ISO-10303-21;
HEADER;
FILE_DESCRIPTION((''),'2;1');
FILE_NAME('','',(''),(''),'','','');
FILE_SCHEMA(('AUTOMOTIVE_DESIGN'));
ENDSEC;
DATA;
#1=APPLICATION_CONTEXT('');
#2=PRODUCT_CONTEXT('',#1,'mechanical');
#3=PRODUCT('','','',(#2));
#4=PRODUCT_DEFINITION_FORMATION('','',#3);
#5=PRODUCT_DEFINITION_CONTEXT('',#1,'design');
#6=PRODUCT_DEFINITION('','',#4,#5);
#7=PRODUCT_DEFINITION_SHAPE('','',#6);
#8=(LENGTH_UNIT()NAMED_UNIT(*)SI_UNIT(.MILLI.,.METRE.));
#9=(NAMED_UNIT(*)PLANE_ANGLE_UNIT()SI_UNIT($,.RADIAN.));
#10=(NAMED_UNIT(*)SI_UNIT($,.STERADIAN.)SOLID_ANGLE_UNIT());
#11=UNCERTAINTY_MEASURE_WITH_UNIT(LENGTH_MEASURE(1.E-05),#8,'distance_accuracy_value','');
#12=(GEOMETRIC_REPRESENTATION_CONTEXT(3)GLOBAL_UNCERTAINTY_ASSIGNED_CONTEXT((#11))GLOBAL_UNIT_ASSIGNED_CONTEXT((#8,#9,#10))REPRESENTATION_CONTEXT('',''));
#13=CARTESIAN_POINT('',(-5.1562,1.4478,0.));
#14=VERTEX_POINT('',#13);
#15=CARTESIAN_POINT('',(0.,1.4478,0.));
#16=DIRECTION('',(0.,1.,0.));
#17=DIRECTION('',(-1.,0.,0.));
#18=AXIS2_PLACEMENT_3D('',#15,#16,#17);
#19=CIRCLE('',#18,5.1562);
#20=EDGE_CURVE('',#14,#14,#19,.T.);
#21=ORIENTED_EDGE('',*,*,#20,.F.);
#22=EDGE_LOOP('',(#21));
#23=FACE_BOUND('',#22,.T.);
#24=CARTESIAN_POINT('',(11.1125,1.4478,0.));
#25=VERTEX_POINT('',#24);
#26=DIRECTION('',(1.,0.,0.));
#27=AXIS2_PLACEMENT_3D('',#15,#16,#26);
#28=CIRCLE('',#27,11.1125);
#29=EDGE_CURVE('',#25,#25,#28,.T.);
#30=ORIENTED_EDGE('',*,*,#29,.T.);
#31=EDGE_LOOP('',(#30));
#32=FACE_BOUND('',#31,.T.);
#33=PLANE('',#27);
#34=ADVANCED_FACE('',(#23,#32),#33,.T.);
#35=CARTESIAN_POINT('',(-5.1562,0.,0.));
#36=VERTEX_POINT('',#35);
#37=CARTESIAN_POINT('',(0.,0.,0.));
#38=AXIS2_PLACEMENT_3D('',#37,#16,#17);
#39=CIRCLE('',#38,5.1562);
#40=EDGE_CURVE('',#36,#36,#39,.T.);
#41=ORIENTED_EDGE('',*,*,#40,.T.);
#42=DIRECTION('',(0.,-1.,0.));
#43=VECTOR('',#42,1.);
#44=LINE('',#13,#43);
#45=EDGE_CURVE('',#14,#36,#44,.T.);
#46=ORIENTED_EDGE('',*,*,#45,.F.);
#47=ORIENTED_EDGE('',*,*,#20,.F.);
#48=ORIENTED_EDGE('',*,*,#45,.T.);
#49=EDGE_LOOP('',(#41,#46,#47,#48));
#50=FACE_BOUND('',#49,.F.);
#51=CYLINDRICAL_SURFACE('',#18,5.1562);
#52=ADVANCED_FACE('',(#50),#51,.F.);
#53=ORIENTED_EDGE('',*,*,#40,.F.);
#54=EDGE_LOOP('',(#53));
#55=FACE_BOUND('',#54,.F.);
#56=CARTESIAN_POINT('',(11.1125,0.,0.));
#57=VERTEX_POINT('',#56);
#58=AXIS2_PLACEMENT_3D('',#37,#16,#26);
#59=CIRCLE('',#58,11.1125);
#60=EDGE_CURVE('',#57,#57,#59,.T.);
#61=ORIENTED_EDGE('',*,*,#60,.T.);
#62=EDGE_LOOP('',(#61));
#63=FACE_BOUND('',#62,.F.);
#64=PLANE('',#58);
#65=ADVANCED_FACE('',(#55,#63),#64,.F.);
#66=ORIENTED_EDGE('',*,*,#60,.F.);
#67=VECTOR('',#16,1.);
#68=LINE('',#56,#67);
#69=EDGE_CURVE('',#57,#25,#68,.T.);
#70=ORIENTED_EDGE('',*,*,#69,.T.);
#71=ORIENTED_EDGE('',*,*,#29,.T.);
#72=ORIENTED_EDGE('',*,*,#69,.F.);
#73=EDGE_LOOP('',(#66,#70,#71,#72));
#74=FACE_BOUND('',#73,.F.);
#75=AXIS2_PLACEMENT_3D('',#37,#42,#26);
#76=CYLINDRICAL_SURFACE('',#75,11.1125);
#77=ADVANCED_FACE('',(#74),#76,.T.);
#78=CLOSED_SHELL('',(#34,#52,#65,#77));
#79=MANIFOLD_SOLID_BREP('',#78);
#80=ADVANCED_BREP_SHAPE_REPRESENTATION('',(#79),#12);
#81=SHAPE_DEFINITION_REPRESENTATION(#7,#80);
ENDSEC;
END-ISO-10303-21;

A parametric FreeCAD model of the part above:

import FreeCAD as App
import Part
import Sketcher
Q = App.Units.Quantity

doc = App.newDocument("Part")
body = doc.addObject("PartDesign::Body", "Body")

# Sketch on XZ plane
sketch1 = body.newObject("Sketcher::SketchObject", "Sketch")
sketch1.AttachmentSupport = (doc.getObject("XZ_Plane"), [""])
sketch1.MapMode = "FlatFace"
sketch1.addGeometry(Part.Circle(App.Vector(0, 0, 0), App.Vector(0, 0, 1), 11.1125), False)
sketch1.addConstraint([
    Sketcher.Constraint("Coincident", 0, 3, -1, 1),
    Sketcher.Constraint("Diameter", 0, Q("0.875 in")),
])
pad1 = body.newObject("PartDesign::Pad", "Pad")
pad1.Profile = sketch1
pad1.Length = Q("0.057 in")
pad1.Reversed = True

# Sketch on XZ plane
sketch2 = body.newObject("Sketcher::SketchObject", "Sketch001")
sketch2.AttachmentSupport = (doc.getObject("XZ_Plane"), [""])
sketch2.MapMode = "FlatFace"
sketch2.AttachmentOffset = App.Placement(App.Vector(0, 0, -0.057 * 25.4), App.Rotation())
sketch2.addGeometry(Part.Circle(App.Vector(0, 0, 0), App.Vector(0, 0, 1), 5.1562), False)
sketch2.addConstraint([
    Sketcher.Constraint("Coincident", 0, 3, -1, 1),
    Sketcher.Constraint("Diameter", 0, Q("0.406 in")),
])
pocket1 = body.newObject("PartDesign::Pocket", "Pocket")
pocket1.Profile = sketch2
pocket1.Type = "ThroughAll"
pocket1.Reversed = True

doc.recompute()
